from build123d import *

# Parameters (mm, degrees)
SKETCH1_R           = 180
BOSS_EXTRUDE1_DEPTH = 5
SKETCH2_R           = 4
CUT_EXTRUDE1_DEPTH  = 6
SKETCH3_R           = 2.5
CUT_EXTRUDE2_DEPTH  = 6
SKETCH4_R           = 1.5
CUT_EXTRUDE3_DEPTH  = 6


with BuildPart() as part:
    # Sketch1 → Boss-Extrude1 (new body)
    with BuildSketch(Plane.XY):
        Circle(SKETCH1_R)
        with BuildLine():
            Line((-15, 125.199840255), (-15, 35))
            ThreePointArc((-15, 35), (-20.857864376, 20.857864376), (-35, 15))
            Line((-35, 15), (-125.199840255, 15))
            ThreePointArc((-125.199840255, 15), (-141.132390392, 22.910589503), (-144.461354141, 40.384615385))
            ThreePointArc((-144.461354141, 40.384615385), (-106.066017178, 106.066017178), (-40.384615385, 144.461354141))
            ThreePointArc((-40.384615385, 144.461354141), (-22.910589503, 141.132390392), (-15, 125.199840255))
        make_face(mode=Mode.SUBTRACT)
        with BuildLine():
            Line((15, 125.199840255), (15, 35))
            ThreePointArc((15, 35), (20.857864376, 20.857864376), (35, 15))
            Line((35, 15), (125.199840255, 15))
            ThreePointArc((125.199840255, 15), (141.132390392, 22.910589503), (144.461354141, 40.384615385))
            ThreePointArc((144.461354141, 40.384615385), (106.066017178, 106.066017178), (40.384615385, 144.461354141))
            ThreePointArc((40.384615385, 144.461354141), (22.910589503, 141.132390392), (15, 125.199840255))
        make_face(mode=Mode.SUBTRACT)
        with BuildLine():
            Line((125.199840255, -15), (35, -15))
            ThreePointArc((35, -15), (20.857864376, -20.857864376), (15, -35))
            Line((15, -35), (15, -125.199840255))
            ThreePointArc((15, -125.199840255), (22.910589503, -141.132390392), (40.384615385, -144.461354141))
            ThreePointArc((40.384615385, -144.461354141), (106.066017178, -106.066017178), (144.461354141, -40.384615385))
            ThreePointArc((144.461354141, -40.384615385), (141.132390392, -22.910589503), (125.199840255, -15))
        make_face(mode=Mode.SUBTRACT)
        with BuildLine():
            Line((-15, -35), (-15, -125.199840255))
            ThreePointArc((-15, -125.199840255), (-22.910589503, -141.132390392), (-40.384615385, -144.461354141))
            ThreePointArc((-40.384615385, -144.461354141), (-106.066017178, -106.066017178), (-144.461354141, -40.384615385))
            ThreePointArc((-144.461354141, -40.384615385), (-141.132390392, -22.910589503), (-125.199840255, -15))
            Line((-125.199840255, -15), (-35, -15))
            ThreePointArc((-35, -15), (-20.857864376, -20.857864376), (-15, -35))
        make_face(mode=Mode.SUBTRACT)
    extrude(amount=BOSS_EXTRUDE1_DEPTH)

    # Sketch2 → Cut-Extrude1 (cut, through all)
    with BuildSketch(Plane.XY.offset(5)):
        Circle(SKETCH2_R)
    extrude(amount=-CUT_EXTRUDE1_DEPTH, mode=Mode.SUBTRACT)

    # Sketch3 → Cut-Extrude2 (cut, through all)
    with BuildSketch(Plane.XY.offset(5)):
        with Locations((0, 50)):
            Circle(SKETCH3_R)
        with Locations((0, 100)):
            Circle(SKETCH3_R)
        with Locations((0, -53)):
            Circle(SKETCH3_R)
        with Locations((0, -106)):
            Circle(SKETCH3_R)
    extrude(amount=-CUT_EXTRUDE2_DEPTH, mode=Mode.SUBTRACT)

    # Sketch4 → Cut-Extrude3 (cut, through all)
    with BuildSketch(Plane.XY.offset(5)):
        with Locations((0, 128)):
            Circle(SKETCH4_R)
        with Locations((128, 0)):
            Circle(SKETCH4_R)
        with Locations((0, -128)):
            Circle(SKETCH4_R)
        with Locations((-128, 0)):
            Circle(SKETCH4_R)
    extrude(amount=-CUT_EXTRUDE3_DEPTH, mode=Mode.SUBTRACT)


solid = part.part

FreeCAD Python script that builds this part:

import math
import FreeCAD as App
import Part
import Sketcher
from FreeCAD import Vector

doc = App.newDocument("Part")
params = doc.addObject("Spreadsheet::Sheet", "Params")
for row, (alias, value) in enumerate([
    ("sketch1_diameter", "360 mm"),
    ("sketch1_radius", "20 mm"),
    ("sketch1_radius2", "150 mm"),
    ("pad1_length", "5 mm"),
    ("sketch2_diameter", "8 mm"),
    ("sketch3_diameter", "5 mm"),
    ("sketch4_diameter", "3 mm"),
], start=1):
    params.set(f"A{row}", alias)
    params.set(f"B{row}", "=" + value)
    params.setAlias(f"B{row}", alias)

body = doc.addObject("PartDesign::Body", "Body")

sketch1 = doc.addObject("Sketcher::SketchObject", "Sketch")
body.addObject(sketch1)
sketch1.AttachmentSupport = (doc.XY_Plane, [""])
sketch1.MapMode = "FlatFace"
sketch1.addGeometry([
    Part.Circle(Vector(0, 0, 0), Vector(0, 0, 1), 180),
    Part.ArcOfCircle(Part.Circle(Vector(-35, -35, 0), Vector(0, 0, 1), 20), math.radians(0), math.radians(90)),
    Part.LineSegment(Vector(-15, -35, 0), Vector(-15, -125.19984, 0)),
    Part.ArcOfCircle(Part.Circle(Vector(-35, -125.19984, 0), Vector(0, 0, 1), 20), math.radians(-105.618498), math.radians(0)),
    Part.ArcOfCircle(Part.Circle(Vector(0, 0, 0), Vector(0, 0, 1), 150), math.radians(-164.381502), math.radians(-105.618498)),
    Part.ArcOfCircle(Part.Circle(Vector(-125.19984, -35, 0), Vector(0, 0, 1), 20), math.radians(90), math.radians(195.618498)),
    Part.LineSegment(Vector(-125.19984, -15, 0), Vector(-35, -15, 0)),
    Part.LineSegment(Vector(35, -15, 0), Vector(125.19984, -15, 0)),
    Part.ArcOfCircle(Part.Circle(Vector(125.19984, -35, 0), Vector(0, 0, 1), 20), math.radians(-15.618498), math.radians(90)),
    Part.ArcOfCircle(Part.Circle(Vector(0, 0, 0), Vector(0, 0, 1), 150), math.radians(-74.381502), math.radians(-15.618498)),
    Part.ArcOfCircle(Part.Circle(Vector(35, -125.19984, 0), Vector(0, 0, 1), 20), math.radians(180), math.radians(285.618498)),
    Part.LineSegment(Vector(15, -125.19984, 0), Vector(15, -35, 0)),
    Part.ArcOfCircle(Part.Circle(Vector(35, -35, 0), Vector(0, 0, 1), 20), math.radians(90), math.radians(180)),
    Part.ArcOfCircle(Part.Circle(Vector(-35, 125.19984, 0), Vector(0, 0, 1), 20), math.radians(0), math.radians(105.618498)),
    Part.LineSegment(Vector(-15, 125.19984, 0), Vector(-15, 35, 0)),
    Part.ArcOfCircle(Part.Circle(Vector(-35, 35, 0), Vector(0, 0, 1), 20), math.radians(-90), math.radians(0)),
    Part.LineSegment(Vector(-35, 15, 0), Vector(-125.19984, 15, 0)),
    Part.ArcOfCircle(Part.Circle(Vector(-125.19984, 35, 0), Vector(0, 0, 1), 20), math.radians(164.381502), math.radians(270)),
    Part.ArcOfCircle(Part.Circle(Vector(0, 0, 0), Vector(0, 0, 1), 150), math.radians(105.618498), math.radians(164.381502)),
    Part.LineSegment(Vector(15, 35, 0), Vector(15, 125.19984, 0)),
    Part.ArcOfCircle(Part.Circle(Vector(35, 125.19984, 0), Vector(0, 0, 1), 20), math.radians(74.381502), math.radians(180)),
    Part.ArcOfCircle(Part.Circle(Vector(0, 0, 0), Vector(0, 0, 1), 150), math.radians(15.618498), math.radians(74.381502)),
    Part.ArcOfCircle(Part.Circle(Vector(125.19984, 35, 0), Vector(0, 0, 1), 20), math.radians(-90), math.radians(15.618498)),
    Part.LineSegment(Vector(125.19984, 15, 0), Vector(35, 15, 0)),
    Part.ArcOfCircle(Part.Circle(Vector(35, 35, 0), Vector(0, 0, 1), 20), math.radians(180), math.radians(270)),
], False)
sketch1.addConstraint([
    Sketcher.Constraint("Tangent", 1, 1, 2, 1),
    Sketcher.Constraint("Tangent", 2, 2, 3, 2),
    Sketcher.Constraint("Tangent", 3, 1, 4, 2),
    Sketcher.Constraint("Tangent", 4, 1, 5, 2),
    Sketcher.Constraint("Tangent", 5, 1, 6, 1),
    Sketcher.Constraint("Tangent", 6, 2, 1, 2),
    Sketcher.Constraint("Tangent", 7, 2, 8, 2),
    Sketcher.Constraint("Tangent", 8, 1, 9, 2),
    Sketcher.Constraint("Tangent", 9, 1, 10, 2),
    Sketcher.Constraint("Tangent", 10, 1, 11, 1),
    Sketcher.Constraint("Tangent", 11, 2, 12, 2),
    Sketcher.Constraint("Tangent", 12, 1, 7, 1),
    Sketcher.Constraint("Tangent", 13, 1, 14, 1),
    Sketcher.Constraint("Tangent", 14, 2, 15, 2),
    Sketcher.Constraint("Tangent", 15, 1, 16, 1),
    Sketcher.Constraint("Tangent", 16, 2, 17, 2),
    Sketcher.Constraint("Tangent", 17, 1, 18, 2),
    Sketcher.Constraint("Tangent", 18, 1, 13, 2),
    Sketcher.Constraint("Tangent", 19, 2, 20, 2),
    Sketcher.Constraint("Tangent", 20, 1, 21, 2),
    Sketcher.Constraint("Tangent", 21, 1, 22, 2),
    Sketcher.Constraint("Tangent", 22, 1, 23, 1),
    Sketcher.Constraint("Tangent", 23, 2, 24, 2),
    Sketcher.Constraint("Tangent", 24, 1, 19, 1),
    Sketcher.Constraint("Vertical", 2),
    Sketcher.Constraint("Horizontal", 6),
    Sketcher.Constraint("Horizontal", 7),
    Sketcher.Constraint("Vertical", 11),
    Sketcher.Constraint("Vertical", 14),
    Sketcher.Constraint("Horizontal", 16),
    Sketcher.Constraint("Vertical", 19),
    Sketcher.Constraint("Horizontal", 23),
    Sketcher.Constraint("Coincident", 0, 3, -1, 1),
    Sketcher.Constraint("Coincident", 4, 3, -1, 1),
    Sketcher.Constraint("Coincident", 9, 3, -1, 1),
    Sketcher.Constraint("Coincident", 18, 3, -1, 1),
    Sketcher.Constraint("Coincident", 21, 3, -1, 1),
    Sketcher.Constraint("Equal", 1, 3),
    Sketcher.Constraint("Equal", 3, 5),
    Sketcher.Constraint("Equal", 5, 8),
    Sketcher.Constraint("Equal", 4, 9),
    Sketcher.Constraint("Equal", 8, 10),
    Sketcher.Constraint("Equal", 10, 12),
    Sketcher.Constraint("Equal", 12, 13),
    Sketcher.Constraint("Equal", 13, 15),
    Sketcher.Constraint("Equal", 15, 17),
    Sketcher.Constraint("Equal", 9, 18),
    Sketcher.Constraint("Equal", 17, 20),
    Sketcher.Constraint("Equal", 18, 21),
    Sketcher.Constraint("Equal", 20, 22),
    Sketcher.Constraint("Equal", 22, 24),
    Sketcher.Constraint("Symmetric", 12, 3, 15, 3, -1, 1),
    Sketcher.Constraint("Symmetric", 1, 3, 24, 3, -1, 1),
    Sketcher.Constraint("Symmetric", 1, 3, 12, 3, -2),
    Sketcher.Constraint("Equal", 23, 2),
    Sketcher.Constraint("Diameter", 0, 360.0),
    Sketcher.Constraint("Radius", 1, 20.0),
    Sketcher.Constraint("Radius", 4, 150.0),
    Sketcher.Constraint("DistanceX", 1, 3, -1, 1, 35.0),
])
sketch1.setExpression("Constraints[55]", "Params.sketch1_diameter")
sketch1.setExpression("Constraints[56]", "Params.sketch1_radius")
sketch1.setExpression("Constraints[57]", "Params.sketch1_radius2")
pad1 = doc.addObject("PartDesign::Pad", "Pad")
body.addObject(pad1)
pad1.Profile = sketch1
pad1.setExpression("Length", "Params.pad1_length")

sketch2 = doc.addObject("Sketcher::SketchObject", "Sketch001")
body.addObject(sketch2)
sketch2.AttachmentSupport = (doc.XY_Plane, [""])
sketch2.MapMode = "FlatFace"
sketch2.AttachmentOffset = App.Placement(Vector(0, 0, 5), App.Rotation())
sketch2.addGeometry(Part.Circle(Vector(0, 0, 0), Vector(0, 0, 1), 4), False)
sketch2.addConstraint([
    Sketcher.Constraint("Coincident", 0, 3, -1, 1),
    Sketcher.Constraint("Diameter", 0, 8.0),
])
sketch2.setExpression("Constraints[1]", "Params.sketch2_diameter")
pocket1 = doc.addObject("PartDesign::Pocket", "Pocket")
body.addObject(pocket1)
pocket1.Profile = sketch2
pocket1.Type = "ThroughAll"

sketch3 = doc.addObject("Sketcher::SketchObject", "Sketch002")
body.addObject(sketch3)
sketch3.AttachmentSupport = (doc.XY_Plane, [""])
sketch3.MapMode = "FlatFace"
sketch3.AttachmentOffset = App.Placement(Vector(0, 0, 5), App.Rotation())
sketch3.addGeometry([
    Part.Circle(Vector(0, 50, 0), Vector(0, 0, 1), 2.5),
    Part.Circle(Vector(0, 100, 0), Vector(0, 0, 1), 2.5),
    Part.Circle(Vector(0, -53, 0), Vector(0, 0, 1), 2.5),
    Part.Circle(Vector(0, -106, 0), Vector(0, 0, 1), 2.5),
], False)
sketch3.addConstraint([
    Sketcher.Constraint("Equal", 0, 1),
    Sketcher.Constraint("Equal", 1, 2),
    Sketcher.Constraint("Equal", 2, 3),
    Sketcher.Constraint("PointOnObject", 0, 3, -2),
    Sketcher.Constraint("PointOnObject", 1, 3, -2),
    Sketcher.Constraint("PointOnObject", 2, 3, -2),
    Sketcher.Constraint("PointOnObject", 3, 3, -2),
    Sketcher.Constraint("Diameter", 0, 5.0),
    Sketcher.Constraint("DistanceY", -1, 1, 0, 3, 50.0),
    Sketcher.Constraint("DistanceY", -1, 1, 1, 3, 100.0),
    Sketcher.Constraint("DistanceY", 2, 3, -1, 1, 53.0),
    Sketcher.Constraint("DistanceY", 3, 3, -1, 1, 106.0),
])
sketch3.setExpression("Constraints[7]", "Params.sketch3_diameter")
pocket2 = doc.addObject("PartDesign::Pocket", "Pocket001")
body.addObject(pocket2)
pocket2.Profile = sketch3
pocket2.Type = "ThroughAll"

sketch4 = doc.addObject("Sketcher::SketchObject", "Sketch003")
body.addObject(sketch4)
sketch4.AttachmentSupport = (doc.XY_Plane, [""])
sketch4.MapMode = "FlatFace"
sketch4.AttachmentOffset = App.Placement(Vector(0, 0, 5), App.Rotation())
sketch4.addGeometry([
    Part.Circle(Vector(0, 128, 0), Vector(0, 0, 1), 1.5),
    Part.Circle(Vector(128, 0, 0), Vector(0, 0, 1), 1.5),
    Part.Circle(Vector(0, -128, 0), Vector(0, 0, 1), 1.5),
    Part.Circle(Vector(-128, 0, 0), Vector(0, 0, 1), 1.5),
], False)
sketch4.addConstraint([
    Sketcher.Constraint("Equal", 0, 1),
    Sketcher.Constraint("Equal", 1, 2),
    Sketcher.Constraint("Equal", 2, 3),
    Sketcher.Constraint("Symmetric", 0, 3, 2, 3, -1, 1),
    Sketcher.Constraint("Symmetric", 1, 3, 3, 3, -1, 1),
    Sketcher.Constraint("PointOnObject", 0, 3, -2),
    Sketcher.Constraint("PointOnObject", 1, 3, -1),
    Sketcher.Constraint("Diameter", 0, 3.0),
    Sketcher.Constraint("DistanceY", -1, 1, 0, 3, 128.0),
    Sketcher.Constraint("DistanceX", -1, 1, 1, 3, 128.0),
])
sketch4.setExpression("Constraints[7]", "Params.sketch4_diameter")
pocket3 = doc.addObject("PartDesign::Pocket", "Pocket002")
body.addObject(pocket3)
pocket3.Profile = sketch4
pocket3.Type = "ThroughAll"

doc.recompute()
